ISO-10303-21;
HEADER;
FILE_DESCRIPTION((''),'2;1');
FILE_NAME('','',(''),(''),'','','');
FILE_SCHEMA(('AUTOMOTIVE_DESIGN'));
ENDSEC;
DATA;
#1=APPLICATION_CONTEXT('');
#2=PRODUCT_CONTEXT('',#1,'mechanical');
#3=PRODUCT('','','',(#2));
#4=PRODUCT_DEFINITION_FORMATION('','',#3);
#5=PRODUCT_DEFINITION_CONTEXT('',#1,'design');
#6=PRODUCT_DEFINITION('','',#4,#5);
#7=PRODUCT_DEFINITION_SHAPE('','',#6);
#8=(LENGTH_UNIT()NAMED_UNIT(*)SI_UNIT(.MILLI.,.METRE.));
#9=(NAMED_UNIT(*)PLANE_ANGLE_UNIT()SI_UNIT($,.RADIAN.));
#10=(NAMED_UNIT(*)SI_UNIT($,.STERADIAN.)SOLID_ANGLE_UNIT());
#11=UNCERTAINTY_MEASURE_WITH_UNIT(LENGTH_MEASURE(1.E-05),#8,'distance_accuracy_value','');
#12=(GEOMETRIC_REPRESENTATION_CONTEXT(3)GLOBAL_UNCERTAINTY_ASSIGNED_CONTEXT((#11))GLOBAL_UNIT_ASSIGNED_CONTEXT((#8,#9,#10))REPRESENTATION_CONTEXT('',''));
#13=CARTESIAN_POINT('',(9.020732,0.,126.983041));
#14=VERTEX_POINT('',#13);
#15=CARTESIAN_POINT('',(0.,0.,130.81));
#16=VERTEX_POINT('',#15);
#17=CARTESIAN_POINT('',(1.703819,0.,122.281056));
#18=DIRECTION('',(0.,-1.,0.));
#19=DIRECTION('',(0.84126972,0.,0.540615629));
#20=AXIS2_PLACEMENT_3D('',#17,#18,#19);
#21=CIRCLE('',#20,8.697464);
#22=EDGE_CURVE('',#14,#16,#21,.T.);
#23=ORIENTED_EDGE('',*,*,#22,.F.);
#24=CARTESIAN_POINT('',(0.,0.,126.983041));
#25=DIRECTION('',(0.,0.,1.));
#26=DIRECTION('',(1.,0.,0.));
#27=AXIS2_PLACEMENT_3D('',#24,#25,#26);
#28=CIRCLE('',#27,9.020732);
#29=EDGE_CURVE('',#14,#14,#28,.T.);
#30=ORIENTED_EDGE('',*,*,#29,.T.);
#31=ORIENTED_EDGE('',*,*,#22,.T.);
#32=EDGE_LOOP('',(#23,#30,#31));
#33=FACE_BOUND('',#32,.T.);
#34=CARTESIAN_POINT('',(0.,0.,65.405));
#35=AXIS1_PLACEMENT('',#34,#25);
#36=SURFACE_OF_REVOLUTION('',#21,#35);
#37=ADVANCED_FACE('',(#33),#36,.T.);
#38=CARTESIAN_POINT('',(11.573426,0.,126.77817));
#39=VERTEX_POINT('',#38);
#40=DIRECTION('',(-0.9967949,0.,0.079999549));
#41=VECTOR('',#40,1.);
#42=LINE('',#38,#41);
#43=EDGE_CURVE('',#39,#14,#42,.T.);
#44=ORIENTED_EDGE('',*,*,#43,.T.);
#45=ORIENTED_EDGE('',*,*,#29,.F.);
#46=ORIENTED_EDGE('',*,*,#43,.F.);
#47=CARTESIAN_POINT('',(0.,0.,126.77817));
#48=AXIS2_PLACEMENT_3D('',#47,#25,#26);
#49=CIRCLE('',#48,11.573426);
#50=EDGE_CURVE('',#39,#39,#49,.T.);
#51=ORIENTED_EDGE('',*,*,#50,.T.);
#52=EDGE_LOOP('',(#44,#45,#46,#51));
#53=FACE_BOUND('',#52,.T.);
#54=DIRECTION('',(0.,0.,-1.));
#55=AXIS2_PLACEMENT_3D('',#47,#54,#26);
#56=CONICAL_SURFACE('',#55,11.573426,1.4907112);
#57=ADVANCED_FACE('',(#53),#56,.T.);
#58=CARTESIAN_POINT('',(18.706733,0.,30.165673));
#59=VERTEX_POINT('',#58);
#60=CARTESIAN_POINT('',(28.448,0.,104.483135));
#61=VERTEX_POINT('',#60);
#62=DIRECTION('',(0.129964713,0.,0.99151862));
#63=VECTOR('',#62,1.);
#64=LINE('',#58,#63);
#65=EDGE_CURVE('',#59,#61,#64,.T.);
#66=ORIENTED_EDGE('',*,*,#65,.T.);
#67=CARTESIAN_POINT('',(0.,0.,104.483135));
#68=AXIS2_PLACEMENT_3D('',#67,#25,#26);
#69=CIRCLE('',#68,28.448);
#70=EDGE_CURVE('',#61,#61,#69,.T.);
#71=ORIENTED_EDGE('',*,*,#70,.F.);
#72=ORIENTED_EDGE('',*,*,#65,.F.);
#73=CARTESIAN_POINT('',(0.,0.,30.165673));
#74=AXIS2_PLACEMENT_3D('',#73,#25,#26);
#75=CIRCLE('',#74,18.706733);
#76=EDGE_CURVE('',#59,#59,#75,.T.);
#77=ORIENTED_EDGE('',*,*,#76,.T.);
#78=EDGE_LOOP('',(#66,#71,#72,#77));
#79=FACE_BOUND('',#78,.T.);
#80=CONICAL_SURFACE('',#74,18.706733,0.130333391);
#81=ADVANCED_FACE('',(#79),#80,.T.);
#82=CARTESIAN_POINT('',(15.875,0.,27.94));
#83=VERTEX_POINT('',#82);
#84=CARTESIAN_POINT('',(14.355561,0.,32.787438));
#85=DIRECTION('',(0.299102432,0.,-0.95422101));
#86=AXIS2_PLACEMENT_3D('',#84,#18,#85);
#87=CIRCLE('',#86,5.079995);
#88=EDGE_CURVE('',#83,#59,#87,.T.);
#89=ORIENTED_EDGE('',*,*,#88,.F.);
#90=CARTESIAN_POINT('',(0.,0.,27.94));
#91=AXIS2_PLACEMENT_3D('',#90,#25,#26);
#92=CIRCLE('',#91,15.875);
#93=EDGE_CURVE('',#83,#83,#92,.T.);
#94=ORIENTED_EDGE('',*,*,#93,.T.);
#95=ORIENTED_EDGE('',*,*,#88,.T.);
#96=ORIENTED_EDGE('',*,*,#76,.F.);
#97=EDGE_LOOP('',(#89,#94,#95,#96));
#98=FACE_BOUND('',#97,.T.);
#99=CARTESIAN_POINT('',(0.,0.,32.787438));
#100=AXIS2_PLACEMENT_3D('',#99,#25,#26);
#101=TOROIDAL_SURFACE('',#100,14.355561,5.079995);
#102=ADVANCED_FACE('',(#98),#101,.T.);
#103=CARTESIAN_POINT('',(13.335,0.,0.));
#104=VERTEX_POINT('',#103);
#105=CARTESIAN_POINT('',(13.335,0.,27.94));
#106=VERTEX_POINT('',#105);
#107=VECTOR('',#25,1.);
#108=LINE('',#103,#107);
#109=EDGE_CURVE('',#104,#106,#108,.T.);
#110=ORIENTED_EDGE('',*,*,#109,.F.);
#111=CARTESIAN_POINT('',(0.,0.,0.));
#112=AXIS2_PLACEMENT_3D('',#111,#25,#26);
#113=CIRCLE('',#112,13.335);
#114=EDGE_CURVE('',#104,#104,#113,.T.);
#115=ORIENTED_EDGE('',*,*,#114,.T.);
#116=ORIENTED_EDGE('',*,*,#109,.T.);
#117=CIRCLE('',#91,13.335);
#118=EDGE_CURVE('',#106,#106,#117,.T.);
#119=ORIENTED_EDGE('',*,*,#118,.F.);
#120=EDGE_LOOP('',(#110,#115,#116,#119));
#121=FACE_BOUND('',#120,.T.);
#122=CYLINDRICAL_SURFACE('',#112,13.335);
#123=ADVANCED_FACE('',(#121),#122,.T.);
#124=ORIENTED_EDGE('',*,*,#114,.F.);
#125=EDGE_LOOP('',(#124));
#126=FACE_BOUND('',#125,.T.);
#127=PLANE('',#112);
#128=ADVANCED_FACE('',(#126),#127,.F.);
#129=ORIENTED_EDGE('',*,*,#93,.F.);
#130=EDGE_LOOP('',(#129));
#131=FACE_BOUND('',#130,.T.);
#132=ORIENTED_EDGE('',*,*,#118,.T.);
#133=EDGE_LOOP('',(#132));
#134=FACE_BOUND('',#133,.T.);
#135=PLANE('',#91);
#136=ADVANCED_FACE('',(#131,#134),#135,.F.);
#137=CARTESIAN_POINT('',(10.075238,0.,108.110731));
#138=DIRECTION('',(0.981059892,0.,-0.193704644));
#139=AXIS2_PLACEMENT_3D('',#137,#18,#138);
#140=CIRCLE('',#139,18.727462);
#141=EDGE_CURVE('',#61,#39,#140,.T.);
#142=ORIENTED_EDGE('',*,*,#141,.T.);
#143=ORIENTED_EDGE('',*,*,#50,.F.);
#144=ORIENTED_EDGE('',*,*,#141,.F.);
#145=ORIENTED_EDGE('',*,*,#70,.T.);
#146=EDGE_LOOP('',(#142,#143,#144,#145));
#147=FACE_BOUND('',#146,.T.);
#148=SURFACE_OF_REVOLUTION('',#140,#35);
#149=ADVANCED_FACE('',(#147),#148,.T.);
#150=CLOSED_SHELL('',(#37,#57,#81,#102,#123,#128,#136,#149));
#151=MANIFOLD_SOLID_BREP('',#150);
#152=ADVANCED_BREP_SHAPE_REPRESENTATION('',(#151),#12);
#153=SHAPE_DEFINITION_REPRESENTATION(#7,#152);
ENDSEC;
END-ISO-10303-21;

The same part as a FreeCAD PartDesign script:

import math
import FreeCAD as App
import Part
import Sketcher
Q = App.Units.Quantity

doc = App.newDocument("Part")
body = doc.addObject("PartDesign::Body", "Body")

sketch1 = doc.addObject("Sketcher::SketchObject", "Sketch")
body.addObject(sketch1)
sketch1.AttachmentSupport = (doc.XZ_Plane, [""])
sketch1.MapMode = "FlatFace"
sketch1.addGeometry(Part.LineSegment(App.Vector(0, 0, 0), App.Vector(13.3, 0, 0)), False)
sketch1.addGeometry(Part.LineSegment(App.Vector(13.3, 0, 0), App.Vector(13.3, 27.9, 0)), False)
sketch1.addGeometry(Part.LineSegment(App.Vector(13.3, 27.9, 0), App.Vector(15.9, 27.9, 0)), False)
sketch1.addGeometry(Part.ArcOfCircle(Part.Circle(App.Vector(14.4, 32.8, 0), App.Vector(0, 0, 1), 5.1), math.radians(-73), math.radians(-31)), False)
sketch1.addGeometry(Part.LineSegment(App.Vector(18.7, 30.2, 0), App.Vector(28.4, 104.5, 0)), False)
sketch1.addGeometry(Part.ArcOfCircle(Part.Circle(App.Vector(10.1, 108.1, 0), App.Vector(0, 0, 1), 18.7), math.radians(-11), math.radians(85)), False)
sketch1.addGeometry(Part.LineSegment(App.Vector(11.6, 126.8, 0), App.Vector(9, 127, 0)), False)
sketch1.addGeometry(Part.ArcOfCircle(Part.Circle(App.Vector(1.7, 122.3, 0), App.Vector(0, 0, 1), 8.7), math.radians(33), math.radians(101)), False)
sketch1.addGeometry(Part.LineSegment(App.Vector(0, 130.8, 0), App.Vector(0, 0, 0)), False)
sketch1.addConstraint(Sketcher.Constraint("Coincident", 0, 2, 1, 1))
sketch1.addConstraint(Sketcher.Constraint("Coincident", 1, 2, 2, 1))
sketch1.addConstraint(Sketcher.Constraint("Coincident", 2, 2, 3, 1))
sketch1.addConstraint(Sketcher.Constraint("Coincident", 3, 2, 4, 1))
sketch1.addConstraint(Sketcher.Constraint("Coincident", 4, 2, 5, 1))
sketch1.addConstraint(Sketcher.Constraint("Tangent", 5, 2, 6, 1))
sketch1.addConstraint(Sketcher.Constraint("Coincident", 6, 2, 7, 1))
sketch1.addConstraint(Sketcher.Constraint("Coincident", 7, 2, 8, 1))
sketch1.addConstraint(Sketcher.Constraint("Coincident", 8, 2, 0, 1))
sketch1.addConstraint(Sketcher.Constraint("Horizontal", 0))
sketch1.addConstraint(Sketcher.Constraint("Vertical", 1))
sketch1.addConstraint(Sketcher.Constraint("Horizontal", 2))
sketch1.addConstraint(Sketcher.Constraint("Vertical", 8))
sketch1.addConstraint(Sketcher.Constraint("Coincident", 8, 2, -1, 1))
sketch1.addConstraint(Sketcher.Constraint("DistanceX", 2, 1, 2, 2, Q("0.1 in")))
sketch1.addConstraint(Sketcher.Constraint("DistanceY", 1, 1, 1, 2, Q("1.1 in")))
sketch1.addConstraint(Sketcher.Constraint("DistanceY", 8, 2, 8, 1, Q("5.15 in")))
sketch1.addConstraint(Sketcher.Constraint("DistanceX", 0, 1, 0, 2, Q("0.525 in")))
sketch1.addConstraint(Sketcher.Constraint("DistanceX", -1, 1, 4, 2, Q("1.12 in")))
sketch1.addConstraint(Sketcher.Constraint("Radius", 5, 18.727462))
sketch1.addConstraint(Sketcher.Constraint("Radius", 3, 5.079995))
sketch1.addConstraint(Sketcher.Constraint("Radius", 7, 8.697464))
sketch1.addConstraint(Sketcher.Constraint("DistanceX", 7, 3, 3, 3, Q("0.4981001 in")))
sketch1.addConstraint(Sketcher.Constraint("Distance", 6, 2.560902))
sketch1.addConstraint(Sketcher.Constraint("Distance", 4, 74.953168))
sketch1.addConstraint(Sketcher.Constraint("DistanceX", -1, 1, 3, 3, 14.355561))
sketch1.addConstraint(Sketcher.Constraint("DistanceX", -1, 1, 5, 3, 10.075238))
sketch1.addConstraint(Sketcher.Constraint("DistanceY", -1, 1, 5, 3, 108.110731))
revolution = doc.addObject("PartDesign::Revolution", "Revolution")
body.addObject(revolution)
revolution.Profile = sketch1
revolution.ReferenceAxis = (sketch1, ["V_Axis"])
revolution.Angle = 360

doc.recompute()
